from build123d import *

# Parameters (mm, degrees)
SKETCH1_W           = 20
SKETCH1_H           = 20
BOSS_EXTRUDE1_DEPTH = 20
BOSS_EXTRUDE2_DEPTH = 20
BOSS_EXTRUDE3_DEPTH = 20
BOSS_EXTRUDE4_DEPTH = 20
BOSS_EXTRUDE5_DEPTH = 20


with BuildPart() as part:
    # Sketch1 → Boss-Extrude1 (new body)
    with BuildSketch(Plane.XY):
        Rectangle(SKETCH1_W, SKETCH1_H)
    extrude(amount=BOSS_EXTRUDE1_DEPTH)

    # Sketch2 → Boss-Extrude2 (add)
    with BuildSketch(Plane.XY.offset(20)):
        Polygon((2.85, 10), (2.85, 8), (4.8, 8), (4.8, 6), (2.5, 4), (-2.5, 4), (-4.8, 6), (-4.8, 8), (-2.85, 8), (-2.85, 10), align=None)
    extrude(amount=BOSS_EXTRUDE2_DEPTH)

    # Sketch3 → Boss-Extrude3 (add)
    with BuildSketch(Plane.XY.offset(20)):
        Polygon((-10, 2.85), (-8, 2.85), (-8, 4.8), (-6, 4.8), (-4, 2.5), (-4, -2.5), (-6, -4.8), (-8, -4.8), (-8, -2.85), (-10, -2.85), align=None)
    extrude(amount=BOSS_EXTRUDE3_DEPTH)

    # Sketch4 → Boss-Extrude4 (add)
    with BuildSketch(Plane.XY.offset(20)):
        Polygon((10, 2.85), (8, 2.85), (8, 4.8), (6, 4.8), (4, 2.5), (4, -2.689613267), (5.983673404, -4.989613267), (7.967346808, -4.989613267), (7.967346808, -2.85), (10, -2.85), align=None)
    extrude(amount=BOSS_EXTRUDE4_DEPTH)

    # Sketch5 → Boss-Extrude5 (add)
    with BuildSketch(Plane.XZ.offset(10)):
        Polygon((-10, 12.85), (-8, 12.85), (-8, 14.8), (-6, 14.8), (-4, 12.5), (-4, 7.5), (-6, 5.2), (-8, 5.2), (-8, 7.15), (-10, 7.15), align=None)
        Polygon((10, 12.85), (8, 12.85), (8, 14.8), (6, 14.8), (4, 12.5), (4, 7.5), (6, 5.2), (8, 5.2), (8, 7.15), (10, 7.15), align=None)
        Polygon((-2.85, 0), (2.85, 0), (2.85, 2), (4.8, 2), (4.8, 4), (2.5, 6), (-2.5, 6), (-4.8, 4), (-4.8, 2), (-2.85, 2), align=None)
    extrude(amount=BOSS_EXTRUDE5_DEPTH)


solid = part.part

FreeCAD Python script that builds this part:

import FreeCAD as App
import Part
import Sketcher


def add_polygon(sketch, points):
    """Adds a closed chain of lines whose ends are joined by coincident constraints."""
    first, n = sketch.GeometryCount, len(points)
    for a, b in zip(points, points[1:] + points[:1]):
        sketch.addGeometry(Part.LineSegment(App.Vector(*a, 0), App.Vector(*b, 0)), False)
    for i in range(n):
        sketch.addConstraint(Sketcher.Constraint("Coincident", first + i, 2, first + (i + 1) % n, 1))

doc = App.newDocument("Part")
body = doc.addObject("PartDesign::Body", "Body")

sketch1 = body.newObject("Sketcher::SketchObject", "Sketch")
sketch1.AttachmentSupport = (doc.getObject("XY_Plane"), [""])
sketch1.MapMode = "FlatFace"
add_polygon(sketch1, [(-10, 10), (-10, -10), (10, -10), (10, 10)])
sketch1.addConstraint([
    Sketcher.Constraint("Vertical", 0),
    Sketcher.Constraint("Horizontal", 1),
    Sketcher.Constraint("Vertical", 2),
    Sketcher.Constraint("Horizontal", 3),
    Sketcher.Constraint("Symmetric", 0, 2, 2, 2, -1, 1),
    Sketcher.Constraint("Equal", 3, 0),
    Sketcher.Constraint("DistanceX", 1, 1, 1, 2, 20.0),
])
pad1 = body.newObject("PartDesign::Pad", "Pad")
pad1.Profile = sketch1
pad1.Length = 20

sketch2 = body.newObject("Sketcher::SketchObject", "Sketch001")
sketch2.AttachmentSupport = (doc.getObject("XY_Plane"), [""])
sketch2.MapMode = "FlatFace"
sketch2.AttachmentOffset = App.Placement(App.Vector(0, 0, 20), App.Rotation())
add_polygon(sketch2, [(2.85, 8), (2.85, 10), (-2.85, 10), (-2.85, 8), (-4.8, 8), (-4.8, 6), (-2.5, 4), (2.5, 4), (4.8, 6), (4.8, 8)])
sketch2.addConstraint([
    Sketcher.Constraint("Vertical", 0),
    Sketcher.Constraint("Horizontal", 1),
    Sketcher.Constraint("Vertical", 2),
    Sketcher.Constraint("Horizontal", 3),
    Sketcher.Constraint("Vertical", 4),
    Sketcher.Constraint("Horizontal", 6),
    Sketcher.Constraint("Vertical", 8),
    Sketcher.Constraint("Horizontal", 9),
    Sketcher.Constraint("Symmetric", 4, 2, 7, 2, -2),
    Sketcher.Constraint("Symmetric", 2, 2, 9, 2, -2),
    Sketcher.Constraint("Equal", 2, 4),
    Sketcher.Constraint("Equal", 5, 7),
    Sketcher.Constraint("DistanceX", 6, 1, 6, 2, 5.0),
    Sketcher.Constraint("DistanceY", 0, 1, 0, 2, 2.0),
    Sketcher.Constraint("DistanceX", 1, 2, 1, 1, 5.7),
    Sketcher.Constraint("DistanceY", -1, 1, 0, 2, 10.0),
    Sketcher.Constraint("DistanceY", -1, 1, 5, 2, 4.0),
    Sketcher.Constraint("DistanceX", 3, 2, 3, 1, 1.95),
])
pad2 = body.newObject("PartDesign::Pad", "Pad001")
pad2.Profile = sketch2
pad2.Length = 20

sketch3 = body.newObject("Sketcher::SketchObject", "Sketch002")
sketch3.AttachmentSupport = (doc.getObject("XY_Plane"), [""])
sketch3.MapMode = "FlatFace"
sketch3.AttachmentOffset = App.Placement(App.Vector(0, 0, 20), App.Rotation())
add_polygon(sketch3, [(-8, 2.85), (-10, 2.85), (-10, -2.85), (-8, -2.85), (-8, -4.8), (-6, -4.8), (-4, -2.5), (-4, 2.5), (-6, 4.8), (-8, 4.8)])
sketch3.addConstraint([
    Sketcher.Constraint("Horizontal", 0),
    Sketcher.Constraint("Vertical", 1),
    Sketcher.Constraint("Horizontal", 2),
    Sketcher.Constraint("Vertical", 3),
    Sketcher.Constraint("Horizontal", 4),
    Sketcher.Constraint("Vertical", 6),
    Sketcher.Constraint("Horizontal", 8),
    Sketcher.Constraint("Vertical", 9),
    Sketcher.Constraint("Symmetric", 4, 2, 7, 2, -1),
    Sketcher.Constraint("Symmetric", 2, 2, 9, 2, -1),
    Sketcher.Constraint("Equal", 2, 4),
    Sketcher.Constraint("Equal", 5, 7),
    Sketcher.Constraint("DistanceX", 0, 2, 0, 1, 2.0),
    Sketcher.Constraint("DistanceY", 6, 1, 6, 2, 5.0),
    Sketcher.Constraint("DistanceY", 1, 2, 1, 1, 5.7),
    Sketcher.Constraint("DistanceX", 0, 2, -1, 1, 10.0),
    Sketcher.Constraint("DistanceX", 5, 2, -1, 1, 4.0),
    Sketcher.Constraint("DistanceY", 3, 2, 3, 1, 1.95),
])
pad3 = body.newObject("PartDesign::Pad", "Pad002")
pad3.Profile = sketch3
pad3.Length = 20

sketch4 = body.newObject("Sketcher::SketchObject", "Sketch003")
sketch4.AttachmentSupport = (doc.getObject("XY_Plane"), [""])
sketch4.MapMode = "FlatFace"
sketch4.AttachmentOffset = App.Placement(App.Vector(0, 0, 20), App.Rotation())
add_polygon(sketch4, [(10, 2.85), (8, 2.85), (8, 4.8), (6, 4.8), (4, 2.5), (4, -2.689613), (5.983673, -4.989613), (7.967347, -4.989613), (7.967347, -2.85), (10, -2.85)])
sketch4.addConstraint([
    Sketcher.Constraint("Horizontal", 0),
    Sketcher.Constraint("Vertical", 1),
    Sketcher.Constraint("Horizontal", 2),
    Sketcher.Constraint("Vertical", 4),
    Sketcher.Constraint("Horizontal", 6),
    Sketcher.Constraint("Vertical", 7),
    Sketcher.Constraint("Horizontal", 8),
    Sketcher.Constraint("Vertical", 9),
    Sketcher.Constraint("Equal", 0, 2),
    Sketcher.Constraint("DistanceX", 0, 2, 0, 1, 2.0),
    Sketcher.Constraint("DistanceY", 9, 1, 9, 2, 5.7),
    Sketcher.Constraint("DistanceX", -1, 1, 0, 2, 8.0),
    Sketcher.Constraint("DistanceX", -1, 1, 3, 2, 4.0),
    Sketcher.Constraint("DistanceY", 1, 1, 1, 2, 1.95),
    Sketcher.Constraint("DistanceY", -1, 1, 1, 2, 4.8),
    Sketcher.Constraint("DistanceY", -1, 1, 3, 2, 2.5),
    Sketcher.Constraint("DistanceY", 5, 2, 4, 2, 2.3),
    Sketcher.Constraint("Distance", 5, 3.037262),
    Sketcher.Constraint("DistanceX", 6, 1, 6, 2, 1.983673),
    Sketcher.Constraint("DistanceY", 4, 2, 4, 1, 5.189613),
])
pad4 = body.newObject("PartDesign::Pad", "Pad003")
pad4.Profile = sketch4
pad4.Length = 20

sketch5 = body.newObject("Sketcher::SketchObject", "Sketch004")
sketch5.AttachmentSupport = (doc.getObject("XZ_Plane"), [""])
sketch5.MapMode = "FlatFace"
sketch5.AttachmentOffset = App.Placement(App.Vector(0, 0, 10), App.Rotation())
add_polygon(sketch5, [(-8, 12.85), (-10, 12.85), (-10, 7.15), (-8, 7.15), (-8, 5.2), (-6, 5.2), (-4, 7.5), (-4, 12.5), (-6, 14.8), (-8, 14.8)])
add_polygon(sketch5, [(10, 12.85), (8, 12.85), (8, 14.8), (6, 14.8), (4, 12.5), (4, 7.5), (6, 5.2), (8, 5.2), (8, 7.15), (10, 7.15)])
add_polygon(sketch5, [(-2.85, 0), (2.85, 0), (2.85, 2), (4.8, 2), (4.8, 4), (2.5, 6), (-2.5, 6), (-4.8, 4), (-4.8, 2), (-2.85, 2)])
sketch5.addConstraint([
    Sketcher.Constraint("Horizontal", 0),
    Sketcher.Constraint("Vertical", 1),
    Sketcher.Constraint("Horizontal", 2),
    Sketcher.Constraint("Vertical", 3),
    Sketcher.Constraint("Horizontal", 4),
    Sketcher.Constraint("Vertical", 6),
    Sketcher.Constraint("Horizontal", 8),
    Sketcher.Constraint("Vertical", 9),
    Sketcher.Constraint("Horizontal", 10),
    Sketcher.Constraint("Vertical", 11),
    Sketcher.Constraint("Horizontal", 12),
    Sketcher.Constraint("Vertical", 14),
    Sketcher.Constraint("Horizontal", 16),
    Sketcher.Constraint("Vertical", 17),
    Sketcher.Constraint("Horizontal", 18),
    Sketcher.Constraint("Vertical", 19),
    Sketcher.Constraint("Horizontal", 20),
    Sketcher.Constraint("Vertical", 21),
    Sketcher.Constraint("Horizontal", 22),
    Sketcher.Constraint("Vertical", 23),
    Sketcher.Constraint("Horizontal", 25),
    Sketcher.Constraint("Vertical", 27),
    Sketcher.Constraint("Horizontal", 28),
    Sketcher.Constraint("Vertical", 29),
    Sketcher.Constraint("Symmetric", 20, 2, 29, 2, -1, 1),
    Sketcher.Constraint("Symmetric", 9, 2, 10, 2, -2),
    Sketcher.Constraint("Symmetric", 7, 2, 12, 2, -2),
    Sketcher.Constraint("Symmetric", 6, 2, 13, 2, -2),
    Sketcher.Constraint("Symmetric", 4, 2, 15, 2, -2),
    Sketcher.Constraint("Symmetric", 2, 2, 17, 2, -2),
    Sketcher.Constraint("Symmetric", 23, 2, 26, 2, -2),
    Sketcher.Constraint("Parallel", 5, 13),
    Sketcher.Constraint("Parallel", 7, 15),
    Sketcher.Constraint("Perpendicular", 13, 24),
    Sketcher.Constraint("Perpendicular", 15, 26),
    Sketcher.Constraint("Horizontal", 22, 2, 27, 2),
    Sketcher.Constraint("Vertical", 4, 2, 7, 2),
    Sketcher.Constraint("Vertical", 3, 2, 8, 2),
    Sketcher.Constraint("Equal", 2, 4),
    Sketcher.Constraint("Equal", 8, 10),
    Sketcher.Constraint("Equal", 20, 1),
    Sketcher.Constraint("Equal", 28, 3),
    Sketcher.Constraint("Equal", 25, 6),
    Sketcher.Constraint("Equal", 3, 9),
    Sketcher.Constraint("Equal", 18, 21),
    Sketcher.Constraint("Equal", 21, 23),
    Sketcher.Constraint("DistanceX", 0, 2, 0, 1, 2.0),
    Sketcher.Constraint("DistanceX", 25, 2, 25, 1, 5.0),
    Sketcher.Constraint("DistanceX", 20, 1, 20, 2, 5.7),
    Sketcher.Constraint("DistanceX", 0, 2, -1, 1, 10.0),
    Sketcher.Constraint("DistanceX", 5, 2, -1, 1, 4.0),
    Sketcher.Constraint("DistanceX", 22, 1, 22, 2, 1.95),
    Sketcher.Constraint("DistanceY", -1, 1, 3, 2, 5.2),
])
pad5 = body.newObject("PartDesign::Pad", "Pad004")
pad5.Profile = sketch5
pad5.Length = 20

doc.recompute()
